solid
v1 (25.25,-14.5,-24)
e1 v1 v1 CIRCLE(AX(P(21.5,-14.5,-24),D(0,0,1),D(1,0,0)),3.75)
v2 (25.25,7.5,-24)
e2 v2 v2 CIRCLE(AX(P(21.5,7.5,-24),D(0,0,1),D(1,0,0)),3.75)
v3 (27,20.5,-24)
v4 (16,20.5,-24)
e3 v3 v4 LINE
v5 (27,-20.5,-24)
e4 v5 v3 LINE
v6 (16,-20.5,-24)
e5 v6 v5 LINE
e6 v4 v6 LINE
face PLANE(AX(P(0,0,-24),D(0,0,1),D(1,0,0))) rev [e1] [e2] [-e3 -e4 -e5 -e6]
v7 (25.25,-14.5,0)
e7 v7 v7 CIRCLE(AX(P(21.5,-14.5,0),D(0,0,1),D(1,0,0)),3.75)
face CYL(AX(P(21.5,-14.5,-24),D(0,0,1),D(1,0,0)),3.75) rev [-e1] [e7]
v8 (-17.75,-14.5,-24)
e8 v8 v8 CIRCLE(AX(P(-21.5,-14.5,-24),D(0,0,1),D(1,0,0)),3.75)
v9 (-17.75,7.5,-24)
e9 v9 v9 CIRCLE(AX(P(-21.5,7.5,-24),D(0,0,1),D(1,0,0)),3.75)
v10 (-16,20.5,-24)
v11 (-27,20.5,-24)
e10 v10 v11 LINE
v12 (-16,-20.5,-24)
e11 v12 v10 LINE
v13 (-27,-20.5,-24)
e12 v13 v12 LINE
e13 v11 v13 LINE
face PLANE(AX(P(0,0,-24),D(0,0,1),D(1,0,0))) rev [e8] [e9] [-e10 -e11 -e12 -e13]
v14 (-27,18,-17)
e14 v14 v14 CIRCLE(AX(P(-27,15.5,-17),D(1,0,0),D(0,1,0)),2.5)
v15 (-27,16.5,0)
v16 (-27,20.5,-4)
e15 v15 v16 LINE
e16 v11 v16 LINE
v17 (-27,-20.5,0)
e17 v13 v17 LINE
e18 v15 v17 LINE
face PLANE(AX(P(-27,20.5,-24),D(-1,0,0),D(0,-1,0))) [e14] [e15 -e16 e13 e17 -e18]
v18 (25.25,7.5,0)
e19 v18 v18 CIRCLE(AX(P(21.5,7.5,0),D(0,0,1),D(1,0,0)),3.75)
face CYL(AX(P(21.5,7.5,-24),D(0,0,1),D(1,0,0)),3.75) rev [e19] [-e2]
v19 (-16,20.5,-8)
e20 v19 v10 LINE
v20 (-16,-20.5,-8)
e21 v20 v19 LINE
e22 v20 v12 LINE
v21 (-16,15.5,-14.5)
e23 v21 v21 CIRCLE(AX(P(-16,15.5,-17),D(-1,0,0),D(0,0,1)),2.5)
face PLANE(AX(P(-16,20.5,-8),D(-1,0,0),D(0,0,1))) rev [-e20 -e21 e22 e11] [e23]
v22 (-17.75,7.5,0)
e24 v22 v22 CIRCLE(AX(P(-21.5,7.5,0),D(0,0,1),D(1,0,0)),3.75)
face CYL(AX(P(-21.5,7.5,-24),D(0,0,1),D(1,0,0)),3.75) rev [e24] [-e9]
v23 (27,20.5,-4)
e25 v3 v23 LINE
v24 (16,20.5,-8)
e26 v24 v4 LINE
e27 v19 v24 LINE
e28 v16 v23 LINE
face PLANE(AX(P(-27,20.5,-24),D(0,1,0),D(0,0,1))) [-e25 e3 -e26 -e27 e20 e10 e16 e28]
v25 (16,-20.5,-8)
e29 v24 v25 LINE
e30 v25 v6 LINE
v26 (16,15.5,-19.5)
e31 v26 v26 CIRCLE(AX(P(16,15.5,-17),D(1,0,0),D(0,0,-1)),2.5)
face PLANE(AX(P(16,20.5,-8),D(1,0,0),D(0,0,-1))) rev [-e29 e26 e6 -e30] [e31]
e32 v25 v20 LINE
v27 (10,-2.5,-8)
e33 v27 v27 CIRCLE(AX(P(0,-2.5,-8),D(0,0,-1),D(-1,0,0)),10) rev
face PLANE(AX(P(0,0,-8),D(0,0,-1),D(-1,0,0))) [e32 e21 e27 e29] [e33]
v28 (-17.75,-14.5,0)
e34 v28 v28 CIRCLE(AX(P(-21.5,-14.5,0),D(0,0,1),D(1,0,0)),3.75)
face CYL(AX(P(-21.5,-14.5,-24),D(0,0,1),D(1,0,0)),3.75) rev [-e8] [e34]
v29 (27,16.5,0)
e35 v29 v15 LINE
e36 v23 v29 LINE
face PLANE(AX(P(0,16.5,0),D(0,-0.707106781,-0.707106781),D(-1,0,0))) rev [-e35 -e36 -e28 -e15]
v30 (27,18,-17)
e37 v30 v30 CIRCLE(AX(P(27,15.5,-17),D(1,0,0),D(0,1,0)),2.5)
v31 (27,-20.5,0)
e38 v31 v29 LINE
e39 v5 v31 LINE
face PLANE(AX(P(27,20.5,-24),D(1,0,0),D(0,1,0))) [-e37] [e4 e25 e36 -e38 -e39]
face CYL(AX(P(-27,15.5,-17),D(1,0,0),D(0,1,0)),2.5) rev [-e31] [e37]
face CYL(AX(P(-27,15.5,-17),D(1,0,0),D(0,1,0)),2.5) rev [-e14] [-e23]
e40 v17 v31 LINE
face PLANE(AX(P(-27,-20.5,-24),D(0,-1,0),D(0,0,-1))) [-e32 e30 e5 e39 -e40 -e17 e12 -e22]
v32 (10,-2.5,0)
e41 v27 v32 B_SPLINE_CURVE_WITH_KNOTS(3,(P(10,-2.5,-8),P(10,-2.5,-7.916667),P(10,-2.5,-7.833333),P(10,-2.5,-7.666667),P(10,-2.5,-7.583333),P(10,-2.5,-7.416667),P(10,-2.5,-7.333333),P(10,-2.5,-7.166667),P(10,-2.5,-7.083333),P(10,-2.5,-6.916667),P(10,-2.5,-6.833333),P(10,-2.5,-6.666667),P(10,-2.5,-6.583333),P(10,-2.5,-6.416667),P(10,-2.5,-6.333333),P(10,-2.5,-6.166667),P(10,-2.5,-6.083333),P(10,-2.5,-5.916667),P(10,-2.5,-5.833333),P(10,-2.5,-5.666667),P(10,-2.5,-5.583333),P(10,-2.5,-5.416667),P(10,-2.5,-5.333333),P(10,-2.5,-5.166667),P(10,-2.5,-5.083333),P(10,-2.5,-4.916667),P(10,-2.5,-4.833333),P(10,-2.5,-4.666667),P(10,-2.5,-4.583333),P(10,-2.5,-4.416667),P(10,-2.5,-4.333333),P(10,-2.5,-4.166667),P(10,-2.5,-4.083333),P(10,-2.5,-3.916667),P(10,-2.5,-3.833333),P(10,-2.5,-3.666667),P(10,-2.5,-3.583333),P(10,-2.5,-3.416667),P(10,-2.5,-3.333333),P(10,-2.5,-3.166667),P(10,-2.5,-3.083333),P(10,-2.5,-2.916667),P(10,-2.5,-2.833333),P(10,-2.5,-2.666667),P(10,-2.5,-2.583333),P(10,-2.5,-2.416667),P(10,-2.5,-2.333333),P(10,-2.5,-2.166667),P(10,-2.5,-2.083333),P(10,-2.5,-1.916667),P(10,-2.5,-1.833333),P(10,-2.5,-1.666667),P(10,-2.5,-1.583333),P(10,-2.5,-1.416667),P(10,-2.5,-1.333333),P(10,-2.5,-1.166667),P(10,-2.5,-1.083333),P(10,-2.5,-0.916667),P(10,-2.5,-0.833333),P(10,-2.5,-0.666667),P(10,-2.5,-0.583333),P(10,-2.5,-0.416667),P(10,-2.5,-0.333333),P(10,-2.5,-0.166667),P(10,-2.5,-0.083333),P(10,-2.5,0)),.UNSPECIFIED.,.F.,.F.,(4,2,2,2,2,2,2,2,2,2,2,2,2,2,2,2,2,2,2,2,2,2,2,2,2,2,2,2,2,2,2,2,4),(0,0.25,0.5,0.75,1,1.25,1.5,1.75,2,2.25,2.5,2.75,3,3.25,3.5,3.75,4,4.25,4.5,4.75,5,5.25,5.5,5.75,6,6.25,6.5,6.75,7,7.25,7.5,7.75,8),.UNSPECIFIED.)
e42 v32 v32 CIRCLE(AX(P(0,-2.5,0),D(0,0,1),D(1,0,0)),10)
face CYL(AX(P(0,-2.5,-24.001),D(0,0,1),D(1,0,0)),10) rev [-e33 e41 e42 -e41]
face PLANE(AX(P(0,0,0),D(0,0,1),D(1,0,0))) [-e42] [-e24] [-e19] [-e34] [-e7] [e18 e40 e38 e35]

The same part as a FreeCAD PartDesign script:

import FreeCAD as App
import Part
import Sketcher
Q = App.Units.Quantity


def edges_at(feature, points):
    """Names of the edges that pass closest to the given points."""
    edges = feature.Shape.Edges
    near = lambda p: min(range(len(edges)), key=lambda i: edges[i].distToShape(Part.Vertex(*p))[0])
    return sorted({f"Edge{near(p) + 1}" for p in points})


def add_polygon(sketch, points):
    """Adds a closed chain of lines whose ends are joined by coincident constraints."""
    first, n = sketch.GeometryCount, len(points)
    for a, b in zip(points, points[1:] + points[:1]):
        sketch.addGeometry(Part.LineSegment(App.Vector(*a, 0), App.Vector(*b, 0)), False)
    for i in range(n):
        sketch.addConstraint(Sketcher.Constraint("Coincident", first + i, 2, first + (i + 1) % n, 1))

doc = App.newDocument("Part")
params = doc.addObject("Spreadsheet::Sheet", "Params")
for row, (alias, value) in enumerate([
    ("sketch1_diameter", "7.5 mm"),
    ("sketch1_width", "54 mm"),
    ("sketch1_height", "41 mm"),
    ("pad1_length", "24 mm"),
    ("sketch2_width", "32 mm"),
    ("sketch2_height", "41 mm"),
    ("pocket1_length", "16 mm"),
    ("sketch3_diameter", "5 mm"),
    ("chamfer_size", "4 mm"),
    ("sketch4_diameter", "20 mm"),
], start=1):
    params.set(f"A{row}", alias)
    params.set(f"B{row}", "=" + value)
    params.setAlias(f"B{row}", alias)

body = doc.addObject("PartDesign::Body", "Body")

# Sketch on XY plane
sketch1 = body.newObject("Sketcher::SketchObject", "Sketch")
sketch1.AttachmentSupport = (doc.getObject("XY_Plane"), [""])
sketch1.MapMode = "FlatFace"
add_polygon(sketch1, [(-27, 20.5), (-27, -20.5), (27, -20.5), (27, 20.5)])  # lines 0-3
sketch1.addGeometry(Part.Circle(App.Vector(-21.5, -14.5, 0), App.Vector(0, 0, 1), 3.75), False)  # 4
sketch1.addGeometry(Part.Circle(App.Vector(21.5, -14.5, 0), App.Vector(0, 0, 1), 3.75), False)  # 5
sketch1.addGeometry(Part.Circle(App.Vector(-21.5, 7.5, 0), App.Vector(0, 0, 1), 3.75), False)  # 6
sketch1.addGeometry(Part.Circle(App.Vector(21.5, 7.5, 0), App.Vector(0, 0, 1), 3.75), False)  # 7
sketch1.addConstraint(Sketcher.Constraint("Vertical", 0))
sketch1.addConstraint(Sketcher.Constraint("Horizontal", 1))
sketch1.addConstraint(Sketcher.Constraint("Vertical", 2))
sketch1.addConstraint(Sketcher.Constraint("Horizontal", 3))
sketch1.addConstraint(Sketcher.Constraint("Equal", 4, 5))
sketch1.addConstraint(Sketcher.Constraint("Equal", 5, 6))
sketch1.addConstraint(Sketcher.Constraint("Equal", 6, 7))
sketch1.addConstraint(Sketcher.Constraint("Symmetric", 0, 2, 2, 2, -1, 1))
sketch1.addConstraint(Sketcher.Constraint("Symmetric", 4, 3, 5, 3, -2))
sketch1.addConstraint(Sketcher.Constraint("Symmetric", 6, 3, 7, 3, -2))
sketch1.addConstraint(Sketcher.Constraint("Vertical", 4, 3, 6, 3))
sketch1.addConstraint(Sketcher.Constraint("Diameter", 4, Q("7.5 mm")))
sketch1.addConstraint(Sketcher.Constraint("DistanceX", 1, 1, 1, 2, Q("54 mm")))
sketch1.addConstraint(Sketcher.Constraint("DistanceY", 0, 2, 0, 1, Q("41 mm")))
sketch1.addConstraint(Sketcher.Constraint("DistanceX", 4, 3, 5, 3, Q("43 mm")))
sketch1.addConstraint(Sketcher.Constraint("DistanceY", 4, 3, 6, 3, Q("22 mm")))
sketch1.addConstraint(Sketcher.Constraint("DistanceY", 0, 2, 4, 3, Q("6 mm")))
sketch1.setExpression("Constraints[15]", "Params.sketch1_diameter")
sketch1.setExpression("Constraints[16]", "Params.sketch1_width")
sketch1.setExpression("Constraints[17]", "Params.sketch1_height")
pad1 = body.newObject("PartDesign::Pad", "Pad")
pad1.Profile = sketch1
pad1.setExpression("Length", "Params.pad1_length")
pad1.Reversed = True

# Sketch on XY plane
sketch2 = body.newObject("Sketcher::SketchObject", "Sketch001")
sketch2.AttachmentSupport = (doc.getObject("XY_Plane"), [""])
sketch2.MapMode = "FlatFace"
sketch2.AttachmentOffset = App.Placement(App.Vector(0, 0, -24), App.Rotation())
add_polygon(sketch2, [(16, 20.5), (16, -20.5), (-16, -20.5), (-16, 20.5)])  # lines 0-3
sketch2.addConstraint(Sketcher.Constraint("Vertical", 0))
sketch2.addConstraint(Sketcher.Constraint("Horizontal", 1))
sketch2.addConstraint(Sketcher.Constraint("Vertical", 2))
sketch2.addConstraint(Sketcher.Constraint("Horizontal", 3))
sketch2.addConstraint(Sketcher.Constraint("Symmetric", 0, 2, 2, 2, -1, 1))
sketch2.addConstraint(Sketcher.Constraint("DistanceX", 1, 2, 1, 1, Q("32 mm")))
sketch2.addConstraint(Sketcher.Constraint("DistanceY", 0, 2, 0, 1, Q("41 mm")))
sketch2.setExpression("Constraints[9]", "Params.sketch2_width")
sketch2.setExpression("Constraints[10]", "Params.sketch2_height")
pocket1 = body.newObject("PartDesign::Pocket", "Pocket")
pocket1.Profile = sketch2
pocket1.setExpression("Length", "Params.pocket1_length")
pocket1.Reversed = True

# Sketch on YZ plane
sketch3 = body.newObject("Sketcher::SketchObject", "Sketch002")
sketch3.AttachmentSupport = (doc.getObject("YZ_Plane"), [""])
sketch3.MapMode = "FlatFace"
sketch3.AttachmentOffset = App.Placement(App.Vector(0, 0, 27), App.Rotation())
sketch3.addGeometry(Part.Circle(App.Vector(15.5, -17, 0), App.Vector(0, 0, 1), 2.5), False)
sketch3.addConstraint(Sketcher.Constraint("Diameter", 0, Q("5 mm")))
sketch3.addConstraint(Sketcher.Constraint("DistanceY", 0, 3, -1, 1, Q("17 mm")))
sketch3.addConstraint(Sketcher.Constraint("DistanceX", -1, 1, 0, 3, Q("15.5 mm")))
sketch3.setExpression("Constraints[0]", "Params.sketch3_diameter")
pocket2 = body.newObject("PartDesign::Pocket", "Pocket001")
pocket2.Profile = sketch3
pocket2.Type = "ThroughAll"
doc.recompute()

chamfer = body.newObject("PartDesign::Chamfer", "Chamfer")
chamfer.Base = (pocket2, edges_at(pocket2, [(0, 20.5, 0)]))
chamfer.setExpression("Size", "Params.chamfer_size")

# Sketch on XY plane
sketch4 = body.newObject("Sketcher::SketchObject", "Sketch003")
sketch4.AttachmentSupport = (doc.getObject("XY_Plane"), [""])
sketch4.MapMode = "FlatFace"
sketch4.addGeometry(Part.Circle(App.Vector(0, -2.5, 0), App.Vector(0, 0, 1), 10), False)
sketch4.addConstraint(Sketcher.Constraint("PointOnObject", 0, 3, -2))
sketch4.addConstraint(Sketcher.Constraint("Diameter", 0, Q("20 mm")))
sketch4.addConstraint(Sketcher.Constraint("DistanceY", 0, 3, -1, 1, Q("2.5 mm")))
sketch4.setExpression("Constraints[1]", "Params.sketch4_diameter")
pocket3 = body.newObject("PartDesign::Pocket", "Pocket002")
pocket3.Profile = sketch4
pocket3.Type = "UpToFirst"

doc.recompute()
